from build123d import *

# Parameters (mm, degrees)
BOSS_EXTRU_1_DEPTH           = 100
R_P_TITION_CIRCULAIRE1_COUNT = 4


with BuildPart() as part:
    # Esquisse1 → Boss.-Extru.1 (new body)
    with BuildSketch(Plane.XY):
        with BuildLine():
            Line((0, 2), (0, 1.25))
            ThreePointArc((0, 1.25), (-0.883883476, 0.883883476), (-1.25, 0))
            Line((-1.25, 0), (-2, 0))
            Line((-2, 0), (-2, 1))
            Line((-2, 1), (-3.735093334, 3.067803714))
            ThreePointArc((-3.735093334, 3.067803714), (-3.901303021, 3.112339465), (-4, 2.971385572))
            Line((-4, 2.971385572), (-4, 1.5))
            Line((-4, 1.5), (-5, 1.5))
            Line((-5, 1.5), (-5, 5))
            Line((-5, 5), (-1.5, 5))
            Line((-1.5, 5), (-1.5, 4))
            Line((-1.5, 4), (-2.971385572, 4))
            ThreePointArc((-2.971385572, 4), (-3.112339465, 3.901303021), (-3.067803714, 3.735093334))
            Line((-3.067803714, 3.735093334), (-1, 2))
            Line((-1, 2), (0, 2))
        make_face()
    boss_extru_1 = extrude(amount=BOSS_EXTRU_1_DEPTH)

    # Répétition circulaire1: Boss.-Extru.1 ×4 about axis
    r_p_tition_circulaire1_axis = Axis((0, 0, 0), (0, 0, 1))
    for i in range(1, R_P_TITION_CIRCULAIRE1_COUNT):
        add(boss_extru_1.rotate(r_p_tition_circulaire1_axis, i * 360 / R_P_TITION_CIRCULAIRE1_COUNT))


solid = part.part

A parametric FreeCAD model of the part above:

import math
import FreeCAD as App
import Part
import Sketcher
from FreeCAD import Vector
Q = App.Units.Quantity

doc = App.newDocument("Part")
params = doc.addObject("Spreadsheet::Sheet", "Params")
for row, (alias, value) in enumerate([
    ("sketch1_width", "1 mm"),
    ("sketch1_radius", "0.15 mm"),
    ("sketch1_radius2", "1.25 mm"),
    ("sketch1_width2", "3.5 mm"),
    ("pad1_length", "100 mm"),
], start=1):
    params.set(f"A{row}", alias)
    params.set(f"B{row}", "=" + value)
    params.setAlias(f"B{row}", alias)

body = doc.addObject("PartDesign::Body", "Body")

# Sketch on XY plane
sketch1 = body.newObject("Sketcher::SketchObject", "Sketch")
sketch1.AttachmentSupport = (doc.getObject("XY_Plane"), [""])
sketch1.MapMode = "FlatFace"
sketch1.addGeometry(Part.LineSegment(Vector(0, 1.25, 0), Vector(0, 2, 0)), False)
sketch1.addGeometry(Part.LineSegment(Vector(0, 2, 0), Vector(-1, 2, 0)), False)
sketch1.addGeometry(Part.LineSegment(Vector(-1, 2, 0), Vector(-3.07, 3.74, 0)), False)
sketch1.addGeometry(Part.ArcOfCircle(Part.Circle(Vector(-2.97, 3.85, 0), Vector(0, 0, 1), 0.15), math.radians(90), math.radians(230)), False)
sketch1.addGeometry(Part.LineSegment(Vector(-2.97, 4, 0), Vector(-1.5, 4, 0)), False)
sketch1.addGeometry(Part.LineSegment(Vector(-1.5, 4, 0), Vector(-1.5, 5, 0)), False)
sketch1.addGeometry(Part.LineSegment(Vector(-1.5, 5, 0), Vector(-5, 5, 0)), False)
sketch1.addGeometry(Part.LineSegment(Vector(-5, 5, 0), Vector(-5, 1.5, 0)), False)
sketch1.addGeometry(Part.LineSegment(Vector(-5, 1.5, 0), Vector(-4, 1.5, 0)), False)
sketch1.addGeometry(Part.LineSegment(Vector(-4, 1.5, 0), Vector(-4, 2.97, 0)), False)
sketch1.addGeometry(Part.ArcOfCircle(Part.Circle(Vector(-3.85, 2.97, 0), Vector(0, 0, 1), 0.15), math.radians(40), math.radians(180)), False)
sketch1.addGeometry(Part.LineSegment(Vector(-3.74, 3.07, 0), Vector(-2, 1, 0)), False)
sketch1.addGeometry(Part.LineSegment(Vector(-2, 1, 0), Vector(-2, 0, 0)), False)
sketch1.addGeometry(Part.LineSegment(Vector(-2, 0, 0), Vector(-1.25, 0, 0)), False)
sketch1.addGeometry(Part.ArcOfCircle(Part.Circle(Vector(0, 0, 0), Vector(0, 0, 1), 1.25), math.radians(90), math.radians(180)), False)
sketch1.addConstraint(Sketcher.Constraint("Coincident", 0, 2, 1, 1))
sketch1.addConstraint(Sketcher.Constraint("Coincident", 1, 2, 2, 1))
sketch1.addConstraint(Sketcher.Constraint("Tangent", 2, 2, 3, 2))
sketch1.addConstraint(Sketcher.Constraint("Tangent", 3, 1, 4, 1))
sketch1.addConstraint(Sketcher.Constraint("Coincident", 4, 2, 5, 1))
sketch1.addConstraint(Sketcher.Constraint("Coincident", 5, 2, 6, 1))
sketch1.addConstraint(Sketcher.Constraint("Coincident", 6, 2, 7, 1))
sketch1.addConstraint(Sketcher.Constraint("Coincident", 7, 2, 8, 1))
sketch1.addConstraint(Sketcher.Constraint("Coincident", 8, 2, 9, 1))
sketch1.addConstraint(Sketcher.Constraint("Tangent", 9, 2, 10, 2))
sketch1.addConstraint(Sketcher.Constraint("Tangent", 10, 1, 11, 1))
sketch1.addConstraint(Sketcher.Constraint("Coincident", 11, 2, 12, 1))
sketch1.addConstraint(Sketcher.Constraint("Coincident", 12, 2, 13, 1))
sketch1.addConstraint(Sketcher.Constraint("Coincident", 13, 2, 14, 2))
sketch1.addConstraint(Sketcher.Constraint("Coincident", 14, 1, 0, 1))
sketch1.addConstraint(Sketcher.Constraint("Vertical", 0))
sketch1.addConstraint(Sketcher.Constraint("Horizontal", 1))
sketch1.addConstraint(Sketcher.Constraint("Horizontal", 4))
sketch1.addConstraint(Sketcher.Constraint("Vertical", 5))
sketch1.addConstraint(Sketcher.Constraint("Horizontal", 6))
sketch1.addConstraint(Sketcher.Constraint("Vertical", 7))
sketch1.addConstraint(Sketcher.Constraint("Horizontal", 8))
sketch1.addConstraint(Sketcher.Constraint("Vertical", 9))
sketch1.addConstraint(Sketcher.Constraint("Vertical", 12))
sketch1.addConstraint(Sketcher.Constraint("Horizontal", 13))
sketch1.addConstraint(Sketcher.Constraint("Coincident", 14, 3, -1, 1))
sketch1.addConstraint(Sketcher.Constraint("Equal", 3, 10))
sketch1.addConstraint(Sketcher.Constraint("PointOnObject", 0, 2, -2))
sketch1.addConstraint(Sketcher.Constraint("PointOnObject", 12, 2, -1))
sketch1.addConstraint(Sketcher.Constraint("Equal", 1, 8))
sketch1.addConstraint(Sketcher.Constraint("Equal", 13, 0))
sketch1.addConstraint(Sketcher.Constraint("Equal", 8, 5))
sketch1.addConstraint(Sketcher.Constraint("Equal", 6, 7))
sketch1.addConstraint(Sketcher.Constraint("Equal", 4, 9))
sketch1.addConstraint(Sketcher.Constraint("Equal", 5, 12))
sketch1.addConstraint(Sketcher.Constraint("Equal", 2, 11))
sketch1.addConstraint(Sketcher.Constraint("DistanceX", 1, 2, 1, 1, Q("1 mm")))
sketch1.addConstraint(Sketcher.Constraint("Angle", 2, Q("140 deg")))
sketch1.addConstraint(Sketcher.Constraint("Radius", 3, Q("0.15 mm")))
sketch1.addConstraint(Sketcher.Constraint("Radius", 14, Q("1.25 mm")))
sketch1.addConstraint(Sketcher.Constraint("DistanceX", 6, 2, 6, 1, Q("3.5 mm")))
sketch1.addConstraint(Sketcher.Constraint("DistanceY", -1, 1, 0, 2, Q("2 mm")))
sketch1.addConstraint(Sketcher.Constraint("DistanceY", -1, 1, 3, 1, Q("4 mm")))
sketch1.setExpression("Constraints[36]", "Params.sketch1_width")
sketch1.setExpression("Constraints[38]", "Params.sketch1_radius")
sketch1.setExpression("Constraints[39]", "Params.sketch1_radius2")
sketch1.setExpression("Constraints[40]", "Params.sketch1_width2")
pad1 = body.newObject("PartDesign::Pad", "Pad")
pad1.Profile = sketch1
pad1.setExpression("Length", "Params.pad1_length")
doc.recompute()

polarpattern = body.newObject("PartDesign::PolarPattern", "PolarPattern")
polarpattern.Originals = [pad1]
polarpattern.Axis = (doc.getObject("Z_Axis"), [""])
polarpattern.Angle = 360
polarpattern.Occurrences = 4
body.Tip = polarpattern

doc.recompute()
